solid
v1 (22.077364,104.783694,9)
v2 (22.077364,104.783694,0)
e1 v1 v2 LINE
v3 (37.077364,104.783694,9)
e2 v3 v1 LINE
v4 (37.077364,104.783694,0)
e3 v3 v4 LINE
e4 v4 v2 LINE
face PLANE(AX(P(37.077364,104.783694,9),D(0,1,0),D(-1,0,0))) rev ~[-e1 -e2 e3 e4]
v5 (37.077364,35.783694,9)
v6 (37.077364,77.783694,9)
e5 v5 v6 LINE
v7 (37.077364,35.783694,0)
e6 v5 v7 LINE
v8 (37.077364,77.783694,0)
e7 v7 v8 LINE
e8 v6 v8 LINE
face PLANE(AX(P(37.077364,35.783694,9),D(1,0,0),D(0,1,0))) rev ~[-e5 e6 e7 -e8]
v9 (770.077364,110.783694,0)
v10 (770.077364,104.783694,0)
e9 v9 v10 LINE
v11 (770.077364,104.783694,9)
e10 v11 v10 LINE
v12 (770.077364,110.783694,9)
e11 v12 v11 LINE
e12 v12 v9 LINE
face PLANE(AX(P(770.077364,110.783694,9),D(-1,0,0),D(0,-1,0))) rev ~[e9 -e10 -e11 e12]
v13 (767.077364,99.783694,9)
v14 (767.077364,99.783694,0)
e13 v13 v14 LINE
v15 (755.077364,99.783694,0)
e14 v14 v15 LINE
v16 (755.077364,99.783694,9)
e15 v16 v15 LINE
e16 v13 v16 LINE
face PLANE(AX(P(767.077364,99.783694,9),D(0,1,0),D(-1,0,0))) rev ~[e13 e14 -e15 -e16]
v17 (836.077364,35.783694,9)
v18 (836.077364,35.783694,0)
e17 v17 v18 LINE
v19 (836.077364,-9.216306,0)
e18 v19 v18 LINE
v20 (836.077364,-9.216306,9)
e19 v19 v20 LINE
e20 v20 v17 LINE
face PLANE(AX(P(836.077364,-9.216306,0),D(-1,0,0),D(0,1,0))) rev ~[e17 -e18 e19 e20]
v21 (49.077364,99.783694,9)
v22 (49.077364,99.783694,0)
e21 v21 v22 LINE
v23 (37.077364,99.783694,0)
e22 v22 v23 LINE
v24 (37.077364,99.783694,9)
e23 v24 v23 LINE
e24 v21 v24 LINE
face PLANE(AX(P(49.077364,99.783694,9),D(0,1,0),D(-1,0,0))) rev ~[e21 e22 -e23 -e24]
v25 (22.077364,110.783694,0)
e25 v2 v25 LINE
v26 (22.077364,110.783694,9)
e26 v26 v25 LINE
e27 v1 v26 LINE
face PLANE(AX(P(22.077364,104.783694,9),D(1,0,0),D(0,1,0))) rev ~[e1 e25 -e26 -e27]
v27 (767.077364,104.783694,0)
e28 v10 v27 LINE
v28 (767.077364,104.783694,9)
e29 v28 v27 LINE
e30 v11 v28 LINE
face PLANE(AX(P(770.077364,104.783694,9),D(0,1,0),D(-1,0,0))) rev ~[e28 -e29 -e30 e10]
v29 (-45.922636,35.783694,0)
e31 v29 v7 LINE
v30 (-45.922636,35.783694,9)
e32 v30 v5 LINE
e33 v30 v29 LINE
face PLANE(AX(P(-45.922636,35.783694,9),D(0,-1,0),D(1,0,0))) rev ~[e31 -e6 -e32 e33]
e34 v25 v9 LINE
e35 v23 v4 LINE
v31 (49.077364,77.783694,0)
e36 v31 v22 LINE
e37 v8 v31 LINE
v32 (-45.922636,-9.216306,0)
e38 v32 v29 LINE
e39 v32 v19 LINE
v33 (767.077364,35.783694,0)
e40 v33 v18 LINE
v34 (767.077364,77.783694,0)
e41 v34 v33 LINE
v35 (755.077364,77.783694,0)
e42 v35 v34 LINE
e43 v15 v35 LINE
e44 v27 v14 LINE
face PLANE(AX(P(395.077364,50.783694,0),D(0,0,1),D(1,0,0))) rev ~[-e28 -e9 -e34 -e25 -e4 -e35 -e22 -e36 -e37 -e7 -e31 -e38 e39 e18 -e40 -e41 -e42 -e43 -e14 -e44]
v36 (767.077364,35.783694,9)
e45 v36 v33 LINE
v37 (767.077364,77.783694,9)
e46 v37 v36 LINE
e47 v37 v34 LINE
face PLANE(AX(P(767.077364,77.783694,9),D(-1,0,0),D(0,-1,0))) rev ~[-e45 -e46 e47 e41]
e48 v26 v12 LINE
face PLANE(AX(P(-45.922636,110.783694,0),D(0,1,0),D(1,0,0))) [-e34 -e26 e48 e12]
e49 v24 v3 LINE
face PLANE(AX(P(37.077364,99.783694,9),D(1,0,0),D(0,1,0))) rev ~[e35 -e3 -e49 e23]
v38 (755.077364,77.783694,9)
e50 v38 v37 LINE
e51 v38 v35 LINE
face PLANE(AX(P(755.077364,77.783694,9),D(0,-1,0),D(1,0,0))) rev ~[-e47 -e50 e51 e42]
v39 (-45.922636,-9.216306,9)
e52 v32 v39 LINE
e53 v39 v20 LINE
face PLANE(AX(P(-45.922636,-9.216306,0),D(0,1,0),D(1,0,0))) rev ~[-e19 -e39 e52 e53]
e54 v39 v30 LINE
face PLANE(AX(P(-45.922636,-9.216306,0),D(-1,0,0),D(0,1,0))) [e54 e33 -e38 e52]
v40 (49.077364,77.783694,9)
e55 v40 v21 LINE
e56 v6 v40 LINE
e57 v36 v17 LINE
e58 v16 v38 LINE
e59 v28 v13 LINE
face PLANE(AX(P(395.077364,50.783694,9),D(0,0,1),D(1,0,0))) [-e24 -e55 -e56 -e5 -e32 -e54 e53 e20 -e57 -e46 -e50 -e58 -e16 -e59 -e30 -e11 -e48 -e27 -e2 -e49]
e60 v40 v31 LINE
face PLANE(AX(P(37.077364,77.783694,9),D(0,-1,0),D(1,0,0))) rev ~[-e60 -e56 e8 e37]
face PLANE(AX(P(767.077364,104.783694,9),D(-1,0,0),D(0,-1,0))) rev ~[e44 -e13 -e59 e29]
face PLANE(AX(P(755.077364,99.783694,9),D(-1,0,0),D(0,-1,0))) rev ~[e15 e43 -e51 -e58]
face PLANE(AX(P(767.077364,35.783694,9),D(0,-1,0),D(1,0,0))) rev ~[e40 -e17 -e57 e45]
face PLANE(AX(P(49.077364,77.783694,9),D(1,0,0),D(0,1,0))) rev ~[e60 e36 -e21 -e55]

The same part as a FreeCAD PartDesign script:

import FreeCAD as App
import Part
import Sketcher


def add_polygon(sketch, points):
    """Adds a closed chain of lines whose ends are joined by coincident constraints."""
    first, n = sketch.GeometryCount, len(points)
    for a, b in zip(points, points[1:] + points[:1]):
        sketch.addGeometry(Part.LineSegment(App.Vector(*a, 0), App.Vector(*b, 0)), False)
    for i in range(n):
        sketch.addConstraint(Sketcher.Constraint("Coincident", first + i, 2, first + (i + 1) % n, 1))

doc = App.newDocument("Part")
body = doc.addObject("PartDesign::Body", "Body")

sketch1 = doc.addObject("Sketcher::SketchObject", "Sketch")
body.addObject(sketch1)
sketch1.AttachmentSupport = (doc.XY_Plane, [""])
sketch1.MapMode = "FlatFace"
add_polygon(sketch1, [(-46, 111), (-46, -9), (836, -9), (836, 111)])
sketch1.addConstraint(Sketcher.Constraint("Vertical", 0))
sketch1.addConstraint(Sketcher.Constraint("Horizontal", 1))
sketch1.addConstraint(Sketcher.Constraint("Vertical", 2))
sketch1.addConstraint(Sketcher.Constraint("Horizontal", 3))
sketch1.addConstraint(Sketcher.Constraint("DistanceX", 1, 1, 1, 2, 882.0))
sketch1.addConstraint(Sketcher.Constraint("DistanceY", 0, 2, 0, 1, 120.0))
sketch1.addConstraint(Sketcher.Constraint("DistanceX", 0, 2, -1, 1, 45.922636))
sketch1.addConstraint(Sketcher.Constraint("DistanceY", 0, 2, -1, 1, 9.216306))
pad1 = doc.addObject("PartDesign::Pad", "Pad")
body.addObject(pad1)
pad1.Profile = sketch1
pad1.Length = 9

sketch2 = doc.addObject("Sketcher::SketchObject", "Sketch001")
body.addObject(sketch2)
sketch2.AttachmentSupport = (doc.XY_Plane, [""])
sketch2.MapMode = "FlatFace"
sketch2.AttachmentOffset = App.Placement(App.Vector(0, 0, 9), App.Rotation())
add_polygon(sketch2, [(770.1, 104.8), (767.1, 104.8), (767.1, 99.8), (755.1, 99.8), (755.1, 77.8), (767.1, 77.8), (767.1, 35.8), (836.1, 35.8), (836.1, 110.8), (770.1, 110.8)])
add_polygon(sketch2, [(-45.9, 35.8), (37.1, 35.8), (37.1, 77.8), (49.1, 77.8), (49.1, 99.8), (37.1, 99.8), (37.1, 104.8), (22.1, 104.8), (22.1, 110.8), (-45.9, 110.8)])
sketch2.addConstraint(Sketcher.Constraint("Horizontal", 0))
sketch2.addConstraint(Sketcher.Constraint("Vertical", 1))
sketch2.addConstraint(Sketcher.Constraint("Horizontal", 2))
sketch2.addConstraint(Sketcher.Constraint("Vertical", 3))
sketch2.addConstraint(Sketcher.Constraint("Horizontal", 4))
sketch2.addConstraint(Sketcher.Constraint("Vertical", 5))
sketch2.addConstraint(Sketcher.Constraint("Horizontal", 6))
sketch2.addConstraint(Sketcher.Constraint("Vertical", 7))
sketch2.addConstraint(Sketcher.Constraint("Horizontal", 8))
sketch2.addConstraint(Sketcher.Constraint("Vertical", 9))
sketch2.addConstraint(Sketcher.Constraint("Horizontal", 10))
sketch2.addConstraint(Sketcher.Constraint("Vertical", 11))
sketch2.addConstraint(Sketcher.Constraint("Horizontal", 12))
sketch2.addConstraint(Sketcher.Constraint("Vertical", 13))
sketch2.addConstraint(Sketcher.Constraint("Horizontal", 14))
sketch2.addConstraint(Sketcher.Constraint("Vertical", 15))
sketch2.addConstraint(Sketcher.Constraint("Horizontal", 16))
sketch2.addConstraint(Sketcher.Constraint("Vertical", 17))
sketch2.addConstraint(Sketcher.Constraint("Horizontal", 18))
sketch2.addConstraint(Sketcher.Constraint("Vertical", 19))
sketch2.addConstraint(Sketcher.Constraint("Horizontal", 6, 2, 10, 2))
sketch2.addConstraint(Sketcher.Constraint("Horizontal", 4, 2, 11, 2))
sketch2.addConstraint(Sketcher.Constraint("Horizontal", 2, 2, 13, 2))
sketch2.addConstraint(Sketcher.Constraint("Horizontal", 9, 2, 15, 2))
sketch2.addConstraint(Sketcher.Constraint("Horizontal", 8, 2, 17, 2))
sketch2.addConstraint(Sketcher.Constraint("Vertical", 1, 2, 4, 2))
sketch2.addConstraint(Sketcher.Constraint("Vertical", 11, 2, 14, 2))
sketch2.addConstraint(Sketcher.Constraint("Equal", 4, 12))
sketch2.addConstraint(Sketcher.Constraint("DistanceX", 0, 2, 0, 1, 3.0))
sketch2.addConstraint(Sketcher.Constraint("DistanceX", 2, 2, 2, 1, 12.0))
sketch2.addConstraint(Sketcher.Constraint("DistanceX", 6, 1, 6, 2, 69.0))
sketch2.addConstraint(Sketcher.Constraint("DistanceX", 10, 1, 10, 2, 83.0))
sketch2.addConstraint(Sketcher.Constraint("DistanceX", 16, 2, 16, 1, 15.0))
sketch2.addConstraint(Sketcher.Constraint("DistanceY", 1, 2, 1, 1, 5.0))
sketch2.addConstraint(Sketcher.Constraint("DistanceY", 3, 2, 3, 1, 22.0))
sketch2.addConstraint(Sketcher.Constraint("DistanceY", 5, 2, 5, 1, 42.0))
sketch2.addConstraint(Sketcher.Constraint("DistanceY", 7, 1, 7, 2, 75.0))
sketch2.addConstraint(Sketcher.Constraint("DistanceX", 10, 2, 3, 2, 718.0))
sketch2.addConstraint(Sketcher.Constraint("DistanceX", -1, 1, 0, 2, 767.077364))
sketch2.addConstraint(Sketcher.Constraint("DistanceY", -1, 1, 0, 2, 104.783694))
pocket1 = doc.addObject("PartDesign::Pocket", "Pocket")
body.addObject(pocket1)
pocket1.Profile = sketch2
pocket1.Type = "ThroughAll"

doc.recompute()
